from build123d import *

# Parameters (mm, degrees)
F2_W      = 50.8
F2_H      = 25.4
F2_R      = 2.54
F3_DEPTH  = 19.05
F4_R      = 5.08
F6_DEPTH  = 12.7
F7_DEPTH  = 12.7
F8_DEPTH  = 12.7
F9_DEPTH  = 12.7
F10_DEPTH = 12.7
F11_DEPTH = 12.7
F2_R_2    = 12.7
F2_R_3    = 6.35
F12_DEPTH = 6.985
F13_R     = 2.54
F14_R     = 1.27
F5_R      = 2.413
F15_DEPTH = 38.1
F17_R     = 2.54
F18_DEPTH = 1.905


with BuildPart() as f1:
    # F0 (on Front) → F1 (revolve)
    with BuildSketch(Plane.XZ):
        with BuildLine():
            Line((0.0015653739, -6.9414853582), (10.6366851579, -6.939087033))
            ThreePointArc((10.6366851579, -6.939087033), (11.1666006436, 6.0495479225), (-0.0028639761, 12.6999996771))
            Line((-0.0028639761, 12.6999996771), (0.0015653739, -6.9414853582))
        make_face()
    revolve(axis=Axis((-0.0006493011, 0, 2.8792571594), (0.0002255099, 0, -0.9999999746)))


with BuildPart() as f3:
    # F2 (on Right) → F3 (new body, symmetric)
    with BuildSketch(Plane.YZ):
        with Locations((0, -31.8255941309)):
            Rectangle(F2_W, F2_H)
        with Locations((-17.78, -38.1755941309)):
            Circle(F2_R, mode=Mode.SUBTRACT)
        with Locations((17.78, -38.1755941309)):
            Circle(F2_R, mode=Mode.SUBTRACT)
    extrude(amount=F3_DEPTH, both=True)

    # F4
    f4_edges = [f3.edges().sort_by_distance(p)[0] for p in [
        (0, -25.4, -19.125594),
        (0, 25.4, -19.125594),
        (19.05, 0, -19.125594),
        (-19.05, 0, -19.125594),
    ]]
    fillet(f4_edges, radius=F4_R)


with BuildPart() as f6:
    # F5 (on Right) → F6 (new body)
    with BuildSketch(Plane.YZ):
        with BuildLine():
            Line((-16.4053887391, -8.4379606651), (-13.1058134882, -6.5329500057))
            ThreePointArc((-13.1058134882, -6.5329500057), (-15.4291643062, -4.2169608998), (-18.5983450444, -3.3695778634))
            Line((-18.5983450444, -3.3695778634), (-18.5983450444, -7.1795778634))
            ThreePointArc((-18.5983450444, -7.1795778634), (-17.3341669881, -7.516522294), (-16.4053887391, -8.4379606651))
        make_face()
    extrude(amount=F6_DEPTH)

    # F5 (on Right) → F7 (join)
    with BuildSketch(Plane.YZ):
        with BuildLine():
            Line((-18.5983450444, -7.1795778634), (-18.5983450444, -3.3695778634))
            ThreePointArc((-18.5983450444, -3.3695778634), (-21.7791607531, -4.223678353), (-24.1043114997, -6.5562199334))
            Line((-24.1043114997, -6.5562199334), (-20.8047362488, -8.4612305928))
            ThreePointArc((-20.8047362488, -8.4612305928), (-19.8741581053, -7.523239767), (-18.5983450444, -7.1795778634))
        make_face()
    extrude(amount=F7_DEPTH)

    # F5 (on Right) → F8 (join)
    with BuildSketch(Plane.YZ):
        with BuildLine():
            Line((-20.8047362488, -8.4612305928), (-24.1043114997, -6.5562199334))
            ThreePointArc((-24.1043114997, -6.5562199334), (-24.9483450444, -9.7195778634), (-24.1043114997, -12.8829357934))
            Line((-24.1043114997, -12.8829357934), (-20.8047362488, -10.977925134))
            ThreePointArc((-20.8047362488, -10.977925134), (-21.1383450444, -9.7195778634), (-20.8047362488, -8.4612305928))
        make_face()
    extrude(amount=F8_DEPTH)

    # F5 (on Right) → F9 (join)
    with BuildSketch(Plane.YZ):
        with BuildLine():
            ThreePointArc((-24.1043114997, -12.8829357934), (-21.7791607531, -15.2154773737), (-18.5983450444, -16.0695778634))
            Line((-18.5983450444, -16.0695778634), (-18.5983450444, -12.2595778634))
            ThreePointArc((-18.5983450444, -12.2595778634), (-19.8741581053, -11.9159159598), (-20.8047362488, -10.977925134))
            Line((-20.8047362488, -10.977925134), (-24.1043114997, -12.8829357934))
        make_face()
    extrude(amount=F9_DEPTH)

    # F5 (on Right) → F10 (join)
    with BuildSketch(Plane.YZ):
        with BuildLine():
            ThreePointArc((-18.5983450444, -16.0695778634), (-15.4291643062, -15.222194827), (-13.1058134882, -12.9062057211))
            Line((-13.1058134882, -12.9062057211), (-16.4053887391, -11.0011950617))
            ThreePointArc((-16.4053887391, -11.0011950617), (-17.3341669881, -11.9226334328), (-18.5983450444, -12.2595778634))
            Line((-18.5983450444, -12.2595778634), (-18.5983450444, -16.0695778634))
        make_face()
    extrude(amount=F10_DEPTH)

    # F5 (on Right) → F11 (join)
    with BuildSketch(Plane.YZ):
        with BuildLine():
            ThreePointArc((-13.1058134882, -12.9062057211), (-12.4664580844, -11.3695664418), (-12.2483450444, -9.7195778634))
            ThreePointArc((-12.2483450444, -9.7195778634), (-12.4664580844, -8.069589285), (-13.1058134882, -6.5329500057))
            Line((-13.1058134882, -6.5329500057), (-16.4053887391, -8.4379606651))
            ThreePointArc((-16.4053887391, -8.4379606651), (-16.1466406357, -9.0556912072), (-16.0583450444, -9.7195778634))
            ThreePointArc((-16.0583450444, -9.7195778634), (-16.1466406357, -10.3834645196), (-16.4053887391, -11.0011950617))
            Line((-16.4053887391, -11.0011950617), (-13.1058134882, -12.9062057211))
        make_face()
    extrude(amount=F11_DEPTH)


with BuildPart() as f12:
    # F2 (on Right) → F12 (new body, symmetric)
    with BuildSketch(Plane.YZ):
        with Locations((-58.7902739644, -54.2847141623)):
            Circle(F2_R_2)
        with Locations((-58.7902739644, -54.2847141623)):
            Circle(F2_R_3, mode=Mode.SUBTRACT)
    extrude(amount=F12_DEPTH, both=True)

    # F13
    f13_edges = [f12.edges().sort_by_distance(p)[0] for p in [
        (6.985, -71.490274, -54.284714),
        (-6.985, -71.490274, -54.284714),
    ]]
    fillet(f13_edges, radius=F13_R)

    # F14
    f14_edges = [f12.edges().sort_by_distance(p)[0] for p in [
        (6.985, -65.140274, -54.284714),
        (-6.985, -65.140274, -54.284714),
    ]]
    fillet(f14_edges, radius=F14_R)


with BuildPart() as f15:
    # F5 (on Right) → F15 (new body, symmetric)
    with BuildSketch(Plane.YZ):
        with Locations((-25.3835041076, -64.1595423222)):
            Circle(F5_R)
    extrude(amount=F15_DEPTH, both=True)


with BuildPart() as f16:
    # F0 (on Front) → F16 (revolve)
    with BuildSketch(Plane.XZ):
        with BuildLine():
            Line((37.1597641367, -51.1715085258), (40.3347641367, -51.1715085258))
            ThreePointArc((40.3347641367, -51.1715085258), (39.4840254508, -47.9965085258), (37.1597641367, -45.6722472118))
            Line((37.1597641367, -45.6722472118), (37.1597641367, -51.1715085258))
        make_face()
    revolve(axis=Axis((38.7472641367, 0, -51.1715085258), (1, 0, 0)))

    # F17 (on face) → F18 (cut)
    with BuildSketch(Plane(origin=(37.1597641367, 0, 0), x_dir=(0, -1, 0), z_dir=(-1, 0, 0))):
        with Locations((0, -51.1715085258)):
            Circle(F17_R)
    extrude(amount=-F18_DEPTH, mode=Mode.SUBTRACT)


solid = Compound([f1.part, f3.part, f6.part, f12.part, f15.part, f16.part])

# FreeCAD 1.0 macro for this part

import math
import FreeCAD as App
import Part
import Sketcher
from FreeCAD import Vector
Q = App.Units.Quantity


def edges_at(feature, points):
    """Names of the edges that pass closest to the given points."""
    edges = feature.Shape.Edges
    near = lambda p: min(range(len(edges)), key=lambda i: edges[i].distToShape(Part.Vertex(*p))[0])
    return sorted({f"Edge{near(p) + 1}" for p in points})


def add_polygon(sketch, points):
    """Adds a closed chain of lines whose ends are joined by coincident constraints."""
    first, n = sketch.GeometryCount, len(points)
    for a, b in zip(points, points[1:] + points[:1]):
        sketch.addGeometry(Part.LineSegment(App.Vector(*a, 0), App.Vector(*b, 0)), False)
    for i in range(n):
        sketch.addConstraint(Sketcher.Constraint("Coincident", first + i, 2, first + (i + 1) % n, 1))

doc = App.newDocument("Part")
params = doc.addObject("Spreadsheet::Sheet", "Params")
for row, (alias, value) in enumerate([
    ("sketch1_radius", "0.5 in"),
    ("revolution_angle", "360 deg"),
    ("sketch2_diameter", "0.2 in"),
    ("sketch2_width", "2 in"),
    ("sketch2_height", "1 in"),
    ("pad1_length", "1.5 in"),
    ("fillet_radius", "0.2 in"),
    ("sketch3_radius", "0.1 in"),
    ("sketch3_radius2", "0.25 in"),
    ("pad2_length", "0.5 in"),
    ("sketch4_radius", "0.1 in"),
    ("sketch4_radius2", "0.25 in"),
    ("pad3_length", "0.5 in"),
    ("sketch5_radius", "0.1 in"),
    ("sketch5_radius2", "0.25 in"),
    ("pad4_length", "0.5 in"),
    ("sketch6_radius", "0.1 in"),
    ("sketch6_radius2", "0.25 in"),
    ("pad5_length", "0.5 in"),
    ("sketch7_radius", "0.1 in"),
    ("sketch7_radius2", "0.25 in"),
    ("pad6_length", "0.5 in"),
    ("sketch8_radius", "0.1 in"),
    ("sketch8_radius2", "0.25 in"),
    ("pad7_length", "0.5 in"),
    ("sketch9_diameter", "1 in"),
    ("sketch9_diameter2", "0.5 in"),
    ("pad8_length", "0.55 in"),
    ("fillet2_radius", "0.1 in"),
    ("fillet3_radius", "0.05 in"),
    ("sketch10_diameter", "0.19 in"),
    ("pad9_length", "3 in"),
    ("sketch11_radius", "0.25 in"),
    ("sketch11_width", "0.125 in"),
    ("revolution2_angle", "360 deg"),
    ("sketch12_diameter", "0.2 in"),
    ("pocket1_length", "0.075 in"),
], start=1):
    params.set(f"A{row}", alias)
    params.set(f"B{row}", "=" + value)
    params.setAlias(f"B{row}", alias)

body = doc.addObject("PartDesign::Body", "Body")

# Sketch on XZ plane
sketch1 = body.newObject("Sketcher::SketchObject", "Sketch")
sketch1.AttachmentSupport = (doc.getObject("XZ_Plane"), [""])
sketch1.MapMode = "FlatFace"
sketch1.addGeometry([
    Part.LineSegment(Vector(0.001565, -6.941485, 0), Vector(10.636685, -6.939087, 0)),
    Part.ArcOfCircle(Part.Circle(Vector(0, 0, 0), Vector(0, 0, 1), 12.7), math.radians(-33.119347), math.radians(90.012921)),
    Part.LineSegment(Vector(-0.002864, 12.7, 0), Vector(0.001565, -6.941485, 0)),
], False)
sketch1.addGeometry(Part.LineSegment(Vector(-0.002864, 12.7, 0), Vector(0.001565, -6.941485, 0)), True)  # axis
sketch1.addConstraint([
    Sketcher.Constraint("Coincident", 0, 2, 1, 1),
    Sketcher.Constraint("Coincident", 1, 2, 2, 1),
    Sketcher.Constraint("Coincident", 2, 2, 0, 1),
    Sketcher.Constraint("Coincident", 1, 3, -1, 1),
    Sketcher.Constraint("Coincident", 3, 1, 1, 2),
    Sketcher.Constraint("Coincident", 3, 2, 2, 2),
    Sketcher.Constraint("Perpendicular", 0, 2),
    Sketcher.Constraint("Radius", 1, Q("0.5 in")),
    Sketcher.Constraint("DistanceY", 2, 2, 0, 2, 0.002398),
    Sketcher.Constraint("Distance", 0, 10.63512),
    Sketcher.Constraint("Distance", 2, 19.641486),
])
sketch1.setExpression("Constraints[7]", "Params.sketch1_radius")
revolution = body.newObject("PartDesign::Revolution", "Revolution")
revolution.Profile = sketch1
revolution.ReferenceAxis = (sketch1, ["Axis0"])
revolution.setExpression("Angle", "Params.revolution_angle")
body2 = doc.addObject("PartDesign::Body", "Body001")

# Sketch on YZ plane
sketch2 = body2.newObject("Sketcher::SketchObject", "Sketch001")
sketch2.AttachmentSupport = (doc.getObject("YZ_Plane001"), [""])
sketch2.MapMode = "FlatFace"
add_polygon(sketch2, [(-25.4, -19.125594), (-25.4, -44.525594), (25.4, -44.525594), (25.4, -19.125594)])  # lines 0-3
sketch2.addGeometry(Part.Circle(Vector(-17.78, -38.175594, 0), Vector(0, 0, 1), 2.54), False)  # 4
sketch2.addGeometry(Part.Circle(Vector(17.78, -38.175594, 0), Vector(0, 0, 1), 2.54), False)  # 5
sketch2.addConstraint([
    Sketcher.Constraint("Vertical", 0),
    Sketcher.Constraint("Horizontal", 1),
    Sketcher.Constraint("Vertical", 2),
    Sketcher.Constraint("Horizontal", 3),
    Sketcher.Constraint("Equal", 4, 5),
    Sketcher.Constraint("Symmetric", 4, 3, 5, 3, -2),
    Sketcher.Constraint("Diameter", 4, Q("0.2 in")),
    Sketcher.Constraint("DistanceX", 1, 1, 1, 2, Q("2 in")),
    Sketcher.Constraint("DistanceY", 0, 2, 0, 1, Q("1 in")),
    Sketcher.Constraint("DistanceX", 0, 2, -1, 1, Q("1 in")),
    Sketcher.Constraint("DistanceX", 4, 3, -1, 1, Q("0.7 in")),
    Sketcher.Constraint("DistanceY", 0, 2, 4, 3, Q("0.25 in")),
    Sketcher.Constraint("DistanceY", 4, 3, -1, 1, 38.175594),
])
sketch2.setExpression("Constraints[10]", "Params.sketch2_diameter")
sketch2.setExpression("Constraints[11]", "Params.sketch2_width")
sketch2.setExpression("Constraints[12]", "Params.sketch2_height")
pad1 = body2.newObject("PartDesign::Pad", "Pad")
pad1.Profile = sketch2
pad1.setExpression("Length", "Params.pad1_length")
pad1.Midplane = True
doc.recompute()

fillet = body2.newObject("PartDesign::Fillet", "Fillet")
fillet.Base = (pad1, edges_at(pad1, [
    (0, -25.4, -19.126),
    (0, 25.4, -19.126),
    (19.05, 0, -19.126),
    (-19.05, 0, -19.126),
]))
fillet.setExpression("Radius", "Params.fillet_radius")
body3 = doc.addObject("PartDesign::Body", "Body002")

# Sketch on YZ plane
sketch3 = body3.newObject("Sketcher::SketchObject", "Sketch002")
sketch3.AttachmentSupport = (doc.getObject("YZ_Plane002"), [""])
sketch3.MapMode = "FlatFace"
sketch3.addGeometry([
    Part.LineSegment(Vector(-16.405389, -8.437961, 0), Vector(-13.105813, -6.53295, 0)),
    Part.ArcOfCircle(Part.Circle(Vector(-18.598345, -9.719578, 0), Vector(0, 0, 1), 6.35), math.radians(30.121223), math.radians(90)),
    Part.LineSegment(Vector(-18.598345, -3.369578, 0), Vector(-18.598345, -7.179578, 0)),
    Part.ArcOfCircle(Part.Circle(Vector(-18.598345, -9.719578, 0), Vector(0, 0, 1), 2.54), math.radians(30.303058), math.radians(90)),
], False)
sketch3.addConstraint([
    Sketcher.Constraint("Coincident", 0, 2, 1, 1),
    Sketcher.Constraint("Coincident", 1, 2, 2, 1),
    Sketcher.Constraint("Coincident", 2, 2, 3, 2),
    Sketcher.Constraint("Coincident", 3, 1, 0, 1),
    Sketcher.Constraint("Vertical", 2),
    Sketcher.Constraint("Coincident", 3, 3, 1, 3),
    Sketcher.Constraint("Vertical", 3, 3, 1, 2),
    Sketcher.Constraint("Radius", 3, Q("0.1 in")),
    Sketcher.Constraint("Radius", 1, Q("0.25 in")),
    Sketcher.Constraint("Angle", 0, Q("30 deg")),
    Sketcher.Constraint("DistanceY", 0, 2, -1, 1, 6.53295),
    Sketcher.Constraint("DistanceX", 3, 1, -1, 1, 16.405389),
    Sketcher.Constraint("DistanceX", 3, 3, 0, 2, 5.492532),
])
sketch3.setExpression("Constraints[7]", "Params.sketch3_radius")
sketch3.setExpression("Constraints[8]", "Params.sketch3_radius2")
pad2 = body3.newObject("PartDesign::Pad", "Pad001")
pad2.Profile = sketch3
pad2.setExpression("Length", "Params.pad2_length")

# Sketch on YZ plane
sketch4 = body3.newObject("Sketcher::SketchObject", "Sketch003")
sketch4.AttachmentSupport = (doc.getObject("YZ_Plane002"), [""])
sketch4.MapMode = "FlatFace"
sketch4.addGeometry([
    Part.LineSegment(Vector(-18.598345, -7.179578, 0), Vector(-18.598345, -3.369578, 0)),
    Part.ArcOfCircle(Part.Circle(Vector(-18.598345, -9.719578, 0), Vector(0, 0, 1), 6.35), math.radians(90), math.radians(150.121223)),
    Part.LineSegment(Vector(-24.104312, -6.55622, 0), Vector(-20.804736, -8.461231, 0)),
    Part.ArcOfCircle(Part.Circle(Vector(-18.598345, -9.719578, 0), Vector(0, 0, 1), 2.54), math.radians(90), math.radians(150.303058)),
], False)
sketch4.addConstraint([
    Sketcher.Constraint("Coincident", 0, 2, 1, 1),
    Sketcher.Constraint("Coincident", 1, 2, 2, 1),
    Sketcher.Constraint("Coincident", 2, 2, 3, 2),
    Sketcher.Constraint("Coincident", 3, 1, 0, 1),
    Sketcher.Constraint("Vertical", 0),
    Sketcher.Constraint("Coincident", 3, 3, 1, 3),
    Sketcher.Constraint("Vertical", 3, 3, 0, 2),
    Sketcher.Constraint("Radius", 3, Q("0.1 in")),
    Sketcher.Constraint("Radius", 1, Q("0.25 in")),
    Sketcher.Constraint("Angle", 2, Q("-30 deg")),
    Sketcher.Constraint("DistanceX", 1, 2, -1, 1, 24.104311),
    Sketcher.Constraint("DistanceY", 1, 2, -1, 1, 6.55622),
    Sketcher.Constraint("DistanceX", 2, 2, 1, 3, 2.206391),
])
sketch4.setExpression("Constraints[7]", "Params.sketch4_radius")
sketch4.setExpression("Constraints[8]", "Params.sketch4_radius2")
pad3 = body3.newObject("PartDesign::Pad", "Pad002")
pad3.Profile = sketch4
pad3.setExpression("Length", "Params.pad3_length")

# Sketch on YZ plane
sketch5 = body3.newObject("Sketcher::SketchObject", "Sketch004")
sketch5.AttachmentSupport = (doc.getObject("YZ_Plane002"), [""])
sketch5.MapMode = "FlatFace"
sketch5.addGeometry([
    Part.LineSegment(Vector(-20.804736, -8.461231, 0), Vector(-24.104312, -6.55622, 0)),
    Part.ArcOfCircle(Part.Circle(Vector(-18.598345, -9.719578, 0), Vector(0, 0, 1), 6.35), math.radians(150.121223), math.radians(209.878777)),
    Part.LineSegment(Vector(-24.104312, -12.882936, 0), Vector(-20.804736, -10.977925, 0)),
    Part.ArcOfCircle(Part.Circle(Vector(-18.598345, -9.719578, 0), Vector(0, 0, 1), 2.54), math.radians(150.303058), math.radians(209.696942)),
], False)
sketch5.addConstraint([
    Sketcher.Constraint("Coincident", 0, 2, 1, 1),
    Sketcher.Constraint("Coincident", 1, 2, 2, 1),
    Sketcher.Constraint("Coincident", 2, 2, 3, 2),
    Sketcher.Constraint("Coincident", 3, 1, 0, 1),
    Sketcher.Constraint("Coincident", 3, 3, 1, 3),
    Sketcher.Constraint("Vertical", 0, 2, 1, 2),
    Sketcher.Constraint("Vertical", 2, 2, 3, 1),
    Sketcher.Constraint("Radius", 3, Q("0.1 in")),
    Sketcher.Constraint("Radius", 1, Q("0.25 in")),
    Sketcher.Constraint("Angle", 0, Q("150 deg")),
    Sketcher.Constraint("DistanceX", 0, 2, -1, 1, 24.104312),
    Sketcher.Constraint("DistanceY", 0, 2, -1, 1, 6.55622),
    Sketcher.Constraint("DistanceX", 2, 2, 1, 3, 2.206391),
])
sketch5.setExpression("Constraints[7]", "Params.sketch5_radius")
sketch5.setExpression("Constraints[8]", "Params.sketch5_radius2")
pad4 = body3.newObject("PartDesign::Pad", "Pad003")
pad4.Profile = sketch5
pad4.setExpression("Length", "Params.pad4_length")

# Sketch on YZ plane
sketch6 = body3.newObject("Sketcher::SketchObject", "Sketch005")
sketch6.AttachmentSupport = (doc.getObject("YZ_Plane002"), [""])
sketch6.MapMode = "FlatFace"
sketch6.addGeometry([
    Part.ArcOfCircle(Part.Circle(Vector(-18.598345, -9.719578, 0), Vector(0, 0, 1), 6.35), math.radians(-150.121223), math.radians(-90)),
    Part.LineSegment(Vector(-18.598345, -16.069578, 0), Vector(-18.598345, -12.259578, 0)),
    Part.ArcOfCircle(Part.Circle(Vector(-18.598345, -9.719578, 0), Vector(0, 0, 1), 2.54), math.radians(-150.303058), math.radians(-90)),
    Part.LineSegment(Vector(-20.804736, -10.977925, 0), Vector(-24.104312, -12.882936, 0)),
], False)
sketch6.addConstraint([
    Sketcher.Constraint("Coincident", 0, 2, 1, 1),
    Sketcher.Constraint("Coincident", 1, 2, 2, 2),
    Sketcher.Constraint("Coincident", 2, 1, 3, 1),
    Sketcher.Constraint("Coincident", 3, 2, 0, 1),
    Sketcher.Constraint("Vertical", 1),
    Sketcher.Constraint("Coincident", 2, 3, 0, 3),
    Sketcher.Constraint("Vertical", 2, 3, 0, 2),
    Sketcher.Constraint("Radius", 2, Q("0.1 in")),
    Sketcher.Constraint("Radius", 0, Q("0.25 in")),
    Sketcher.Constraint("Angle", 3, Q("-150 deg")),
    Sketcher.Constraint("DistanceX", 3, 2, -1, 1, 24.104312),
    Sketcher.Constraint("DistanceX", 2, 1, 0, 3, 2.206391),
    Sketcher.Constraint("DistanceY", 0, 3, -1, 1, 9.719578),
])
sketch6.setExpression("Constraints[7]", "Params.sketch6_radius")
sketch6.setExpression("Constraints[8]", "Params.sketch6_radius2")
pad5 = body3.newObject("PartDesign::Pad", "Pad004")
pad5.Profile = sketch6
pad5.setExpression("Length", "Params.pad5_length")

# Sketch on YZ plane
sketch7 = body3.newObject("Sketcher::SketchObject", "Sketch006")
sketch7.AttachmentSupport = (doc.getObject("YZ_Plane002"), [""])
sketch7.MapMode = "FlatFace"
sketch7.addGeometry([
    Part.ArcOfCircle(Part.Circle(Vector(-18.598345, -9.719578, 0), Vector(0, 0, 1), 6.35), math.radians(-90), math.radians(-30.121223)),
    Part.LineSegment(Vector(-13.105813, -12.906206, 0), Vector(-16.405389, -11.001195, 0)),
    Part.ArcOfCircle(Part.Circle(Vector(-18.598345, -9.719578, 0), Vector(0, 0, 1), 2.54), math.radians(-90), math.radians(-30.303058)),
    Part.LineSegment(Vector(-18.598345, -12.259578, 0), Vector(-18.598345, -16.069578, 0)),
], False)
sketch7.addConstraint([
    Sketcher.Constraint("Coincident", 0, 2, 1, 1),
    Sketcher.Constraint("Coincident", 1, 2, 2, 2),
    Sketcher.Constraint("Coincident", 2, 1, 3, 1),
    Sketcher.Constraint("Coincident", 3, 2, 0, 1),
    Sketcher.Constraint("Vertical", 3),
    Sketcher.Constraint("Coincident", 2, 3, 0, 3),
    Sketcher.Constraint("Vertical", 0, 3, 2, 1),
    Sketcher.Constraint("Radius", 2, Q("0.1 in")),
    Sketcher.Constraint("Radius", 0, Q("0.25 in")),
    Sketcher.Constraint("Angle", 1, Q("150 deg")),
    Sketcher.Constraint("DistanceX", 1, 2, -1, 1, 16.405389),
    Sketcher.Constraint("DistanceX", 2, 3, 0, 2, 5.492532),
    Sketcher.Constraint("DistanceY", 0, 3, -1, 1, 9.719578),
])
sketch7.setExpression("Constraints[7]", "Params.sketch7_radius")
sketch7.setExpression("Constraints[8]", "Params.sketch7_radius2")
pad6 = body3.newObject("PartDesign::Pad", "Pad005")
pad6.Profile = sketch7
pad6.setExpression("Length", "Params.pad6_length")

# Sketch on YZ plane
sketch8 = body3.newObject("Sketcher::SketchObject", "Sketch007")
sketch8.AttachmentSupport = (doc.getObject("YZ_Plane002"), [""])
sketch8.MapMode = "FlatFace"
sketch8.addGeometry([
    Part.ArcOfCircle(Part.Circle(Vector(-18.598345, -9.719578, 0), Vector(0, 0, 1), 6.35), math.radians(-30.121223), math.radians(0)),  # 0
    Part.ArcOfCircle(Part.Circle(Vector(-18.598345, -9.719578, 0), Vector(0, 0, 1), 6.35), math.radians(0), math.radians(30.121223)),  # 1
    Part.LineSegment(Vector(-13.105813, -6.53295, 0), Vector(-16.405389, -8.437961, 0)),  # 2
    Part.ArcOfCircle(Part.Circle(Vector(-18.598345, -9.719578, 0), Vector(0, 0, 1), 2.54), math.radians(0), math.radians(30.303058)),  # 3
    Part.ArcOfCircle(Part.Circle(Vector(-18.598345, -9.719578, 0), Vector(0, 0, 1), 2.54), math.radians(-30.303058), math.radians(0)),  # 4
    Part.LineSegment(Vector(-16.405389, -11.001195, 0), Vector(-13.105813, -12.906206, 0)),  # 5
], False)
sketch8.addConstraint([
    Sketcher.Constraint("Tangent", 0, 2, 1, 1),
    Sketcher.Constraint("Coincident", 1, 2, 2, 1),
    Sketcher.Constraint("Coincident", 2, 2, 3, 2),
    Sketcher.Constraint("Tangent", 3, 1, 4, 2),
    Sketcher.Constraint("Coincident", 4, 1, 5, 1),
    Sketcher.Constraint("Coincident", 5, 2, 0, 1),
    Sketcher.Constraint("Coincident", 3, 3, 0, 3),
    Sketcher.Constraint("Equal", 0, 1),
    Sketcher.Constraint("Equal", 3, 4),
    Sketcher.Constraint("Horizontal", 4, 3, 0, 2),
    Sketcher.Constraint("Horizontal", 0, 2, 3, 1),
    Sketcher.Constraint("Vertical", 2, 2, 4, 1),
    Sketcher.Constraint("Vertical", 1, 2, 5, 2),
    Sketcher.Constraint("Radius", 3, Q("0.1 in")),
    Sketcher.Constraint("Radius", 0, Q("0.25 in")),
    Sketcher.Constraint("Angle", 2, Q("-150 deg")),
    Sketcher.Constraint("DistanceY", 1, 2, -1, 1, 6.53295),
    Sketcher.Constraint("DistanceX", 2, 2, -1, 1, 16.405389),
    Sketcher.Constraint("DistanceX", 1, 2, 0, 2, 0.857468),
])
sketch8.setExpression("Constraints[13]", "Params.sketch8_radius")
sketch8.setExpression("Constraints[14]", "Params.sketch8_radius2")
pad7 = body3.newObject("PartDesign::Pad", "Pad006")
pad7.Profile = sketch8
pad7.setExpression("Length", "Params.pad7_length")
body4 = doc.addObject("PartDesign::Body", "Body003")

# Sketch on YZ plane
sketch9 = body4.newObject("Sketcher::SketchObject", "Sketch008")
sketch9.AttachmentSupport = (doc.getObject("YZ_Plane003"), [""])
sketch9.MapMode = "FlatFace"
sketch9.addGeometry([
    Part.Circle(Vector(-58.790274, -54.284714, 0), Vector(0, 0, 1), 12.7),
    Part.Circle(Vector(-58.790274, -54.284714, 0), Vector(0, 0, 1), 6.35),
], False)
sketch9.addConstraint([
    Sketcher.Constraint("Coincident", 1, 3, 0, 3),
    Sketcher.Constraint("Diameter", 0, Q("1 in")),
    Sketcher.Constraint("Diameter", 1, Q("0.5 in")),
    Sketcher.Constraint("DistanceX", 0, 3, -1, 1, 58.790274),
    Sketcher.Constraint("DistanceY", 0, 3, -1, 1, 54.284714),
])
sketch9.setExpression("Constraints[1]", "Params.sketch9_diameter")
sketch9.setExpression("Constraints[2]", "Params.sketch9_diameter2")
pad8 = body4.newObject("PartDesign::Pad", "Pad007")
pad8.Profile = sketch9
pad8.setExpression("Length", "Params.pad8_length")
pad8.Midplane = True
doc.recompute()

fillet2 = body4.newObject("PartDesign::Fillet", "Fillet001")
fillet2.Base = (pad8, edges_at(pad8, [(6.985, -71.49, -54.285), (-6.985, -71.49, -54.285)]))
fillet2.setExpression("Radius", "Params.fillet2_radius")
doc.recompute()

fillet3 = body4.newObject("PartDesign::Fillet", "Fillet002")
fillet3.Base = (fillet2, edges_at(fillet2, [(6.985, -65.14, -54.285), (-6.985, -65.14, -54.285)]))
fillet3.setExpression("Radius", "Params.fillet3_radius")
body5 = doc.addObject("PartDesign::Body", "Body004")

# Sketch on YZ plane
sketch10 = body5.newObject("Sketcher::SketchObject", "Sketch009")
sketch10.AttachmentSupport = (doc.getObject("YZ_Plane004"), [""])
sketch10.MapMode = "FlatFace"
sketch10.addGeometry(Part.Circle(Vector(-25.383504, -64.159542, 0), Vector(0, 0, 1), 2.413), False)
sketch10.addConstraint([
    Sketcher.Constraint("Diameter", 0, Q("0.19 in")),
    Sketcher.Constraint("DistanceX", 0, 3, -1, 1, 25.383504),
    Sketcher.Constraint("DistanceY", 0, 3, -1, 1, 64.159542),
])
sketch10.setExpression("Constraints[0]", "Params.sketch10_diameter")
pad9 = body5.newObject("PartDesign::Pad", "Pad008")
pad9.Profile = sketch10
pad9.setExpression("Length", "Params.pad9_length")
pad9.Midplane = True
body6 = doc.addObject("PartDesign::Body", "Body005")

# Sketch on XZ plane
sketch11 = body6.newObject("Sketcher::SketchObject", "Sketch010")
sketch11.AttachmentSupport = (doc.getObject("XZ_Plane005"), [""])
sketch11.MapMode = "FlatFace"
sketch11.addGeometry([
    Part.LineSegment(Vector(37.159764, -51.171509, 0), Vector(40.334764, -51.171509, 0)),
    Part.ArcOfCircle(Part.Circle(Vector(33.984764, -51.171509, 0), Vector(0, 0, 1), 6.35), math.radians(0), math.radians(60)),
    Part.LineSegment(Vector(37.159764, -45.672247, 0), Vector(37.159764, -51.171509, 0)),
], False)
sketch11.addGeometry(Part.LineSegment(Vector(33.984764, -51.171509, 0), Vector(40.334764, -51.171509, 0)), True)  # axis
sketch11.addConstraint([
    Sketcher.Constraint("Coincident", 0, 2, 1, 1),
    Sketcher.Constraint("Coincident", 1, 2, 2, 1),
    Sketcher.Constraint("Coincident", 2, 2, 0, 1),
    Sketcher.Constraint("Horizontal", 0),
    Sketcher.Constraint("Vertical", 2),
    Sketcher.Constraint("Horizontal", 3),
    Sketcher.Constraint("Coincident", 3, 1, 1, 3),
    Sketcher.Constraint("Coincident", 3, 2, 0, 2),
    Sketcher.Constraint("Radius", 1, Q("0.25 in")),
    Sketcher.Constraint("DistanceX", 0, 1, 0, 2, Q("0.125 in")),
    Sketcher.Constraint("DistanceY", 1, 3, -1, 1, 51.171509),
    Sketcher.Constraint("DistanceX", -1, 1, 1, 3, 33.984764),
])
sketch11.setExpression("Constraints[8]", "Params.sketch11_radius")
sketch11.setExpression("Constraints[9]", "Params.sketch11_width")
revolution2 = body6.newObject("PartDesign::Revolution", "Revolution001")
revolution2.Profile = sketch11
revolution2.ReferenceAxis = (sketch11, ["Axis0"])
revolution2.setExpression("Angle", "Params.revolution2_angle")

# Sketch on YZ plane
sketch12 = body6.newObject("Sketcher::SketchObject", "Sketch011")
sketch12.AttachmentSupport = (doc.getObject("YZ_Plane005"), [""])
sketch12.MapMode = "FlatFace"
sketch12.AttachmentOffset = App.Placement(Vector(0, 0, 37.159764), App.Rotation())
sketch12.addGeometry(Part.Circle(Vector(0, -51.171509, 0), Vector(0, 0, 1), 2.54), False)
sketch12.addConstraint([
    Sketcher.Constraint("PointOnObject", 0, 3, -2),
    Sketcher.Constraint("Diameter", 0, Q("0.2 in")),
    Sketcher.Constraint("DistanceY", 0, 3, -1, 1, 51.171509),
])
sketch12.setExpression("Constraints[1]", "Params.sketch12_diameter")
pocket1 = body6.newObject("PartDesign::Pocket", "Pocket")
pocket1.Profile = sketch12
pocket1.setExpression("Length", "Params.pocket1_length")
pocket1.Reversed = True

doc.recompute()
